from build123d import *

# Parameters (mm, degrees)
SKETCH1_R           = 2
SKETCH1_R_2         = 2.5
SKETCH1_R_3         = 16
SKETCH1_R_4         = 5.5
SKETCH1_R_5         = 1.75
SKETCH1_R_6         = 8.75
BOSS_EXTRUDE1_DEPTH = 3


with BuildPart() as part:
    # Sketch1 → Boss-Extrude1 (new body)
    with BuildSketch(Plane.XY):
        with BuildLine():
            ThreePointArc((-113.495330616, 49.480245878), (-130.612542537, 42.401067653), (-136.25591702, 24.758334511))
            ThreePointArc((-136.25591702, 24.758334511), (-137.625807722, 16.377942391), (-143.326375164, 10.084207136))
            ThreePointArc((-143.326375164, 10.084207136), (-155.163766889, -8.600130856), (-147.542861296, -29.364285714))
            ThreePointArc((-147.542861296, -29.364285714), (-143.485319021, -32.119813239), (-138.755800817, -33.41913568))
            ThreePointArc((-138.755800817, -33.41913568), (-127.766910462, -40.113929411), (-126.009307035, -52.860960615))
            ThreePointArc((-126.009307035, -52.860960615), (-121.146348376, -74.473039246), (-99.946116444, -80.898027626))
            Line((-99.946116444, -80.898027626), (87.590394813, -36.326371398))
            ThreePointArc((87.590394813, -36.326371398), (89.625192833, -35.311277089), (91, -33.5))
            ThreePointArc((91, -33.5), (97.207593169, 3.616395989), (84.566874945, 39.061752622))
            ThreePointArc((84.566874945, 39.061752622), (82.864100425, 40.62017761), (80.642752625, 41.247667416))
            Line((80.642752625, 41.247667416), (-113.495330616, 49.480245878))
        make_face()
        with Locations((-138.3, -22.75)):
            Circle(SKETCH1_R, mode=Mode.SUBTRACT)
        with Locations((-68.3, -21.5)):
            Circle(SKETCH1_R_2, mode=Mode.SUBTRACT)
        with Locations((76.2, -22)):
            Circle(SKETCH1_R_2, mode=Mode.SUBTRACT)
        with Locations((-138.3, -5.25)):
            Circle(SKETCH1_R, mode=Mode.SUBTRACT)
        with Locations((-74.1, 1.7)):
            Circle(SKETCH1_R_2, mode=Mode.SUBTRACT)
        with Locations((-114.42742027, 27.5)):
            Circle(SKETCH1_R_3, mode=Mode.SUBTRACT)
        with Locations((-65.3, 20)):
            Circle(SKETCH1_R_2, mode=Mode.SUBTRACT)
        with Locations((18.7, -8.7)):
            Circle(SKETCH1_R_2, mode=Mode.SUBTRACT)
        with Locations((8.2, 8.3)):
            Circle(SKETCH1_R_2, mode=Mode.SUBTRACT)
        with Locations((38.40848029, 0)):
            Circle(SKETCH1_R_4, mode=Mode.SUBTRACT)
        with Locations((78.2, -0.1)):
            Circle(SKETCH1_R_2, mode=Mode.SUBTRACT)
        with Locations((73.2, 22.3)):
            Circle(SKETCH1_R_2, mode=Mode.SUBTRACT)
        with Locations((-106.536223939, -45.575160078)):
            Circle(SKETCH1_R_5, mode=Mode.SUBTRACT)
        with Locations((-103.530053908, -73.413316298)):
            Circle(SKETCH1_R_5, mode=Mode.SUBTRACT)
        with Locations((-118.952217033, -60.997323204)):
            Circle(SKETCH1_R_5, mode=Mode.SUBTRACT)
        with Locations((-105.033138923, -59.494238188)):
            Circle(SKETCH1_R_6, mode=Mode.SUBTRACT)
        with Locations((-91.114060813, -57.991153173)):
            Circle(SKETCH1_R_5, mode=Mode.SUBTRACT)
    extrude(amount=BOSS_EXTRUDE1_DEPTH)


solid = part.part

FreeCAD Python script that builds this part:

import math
import FreeCAD as App
import Part
import Sketcher
Q = App.Units.Quantity

doc = App.newDocument("Part")
params = doc.addObject("Spreadsheet::Sheet", "Params")
for row, (alias, value) in enumerate([
    ("sketch1_diameter", "4 mm"),
    ("sketch1_diameter2", "5 mm"),
    ("sketch1_diameter3", "32 mm"),
    ("sketch1_diameter4", "11 mm"),
    ("sketch1_radius", "22 mm"),
    ("pad1_length", "3 mm"),
], start=1):
    params.set(f"A{row}", alias)
    params.set(f"B{row}", "=" + value)
    params.setAlias(f"B{row}", alias)

body = doc.addObject("PartDesign::Body", "Body")

# Sketch on XY plane
sketch1 = body.newObject("Sketcher::SketchObject", "Sketch")
sketch1.AttachmentSupport = (doc.getObject("XY_Plane"), [""])
sketch1.MapMode = "FlatFace"
sketch1.addGeometry(Part.ArcOfCircle(Part.Circle(App.Vector(-114.42742, 27.5, 0), App.Vector(0, 0, 1), 22), math.radians(87.571782), math.radians(187.158879)), False)
sketch1.addGeometry(Part.ArcOfCircle(Part.Circle(App.Vector(-151.138983, 22.889017, 0), App.Vector(0, 0, 1), 15), math.radians(-58.611351), math.radians(7.158879)), False)
sketch1.addGeometry(Part.ArcOfCircle(Part.Circle(App.Vector(-130.305362, -11.257143, 0), App.Vector(0, 0, 1), 25), math.radians(121.388649), math.radians(226.40946)), False)
sketch1.addGeometry(Part.ArcOfCircle(Part.Circle(App.Vector(-137.200362, -18.5, 0), App.Vector(0, 0, 1), 15), math.radians(-133.59054), math.radians(-95.952039)), False)
sketch1.addGeometry(Part.ArcOfCircle(Part.Circle(App.Vector(-140.31124, -48.338271, 0), App.Vector(0, 0, 1), 15), math.radians(-17.548477), math.radians(84.047961)), False)
sketch1.addGeometry(Part.ArcOfCircle(Part.Circle(App.Vector(-105.033139, -59.494238, 0), App.Vector(0, 0, 1), 22), math.radians(162.451523), math.radians(283.369397)), False)
sketch1.addGeometry(Part.LineSegment(App.Vector(-99.946116, -80.898028, 0), App.Vector(87.590395, -36.326371, 0)), False)
sketch1.addGeometry(Part.ArcOfCircle(Part.Circle(App.Vector(86.434253, -31.461874, 0), App.Vector(0, 0, 1), 5), math.radians(-76.630604), math.radians(-24.055744)), False)
sketch1.addGeometry(Part.ArcOfCircle(Part.Circle(App.Vector(22.658915, -2.992884, 0), App.Vector(0, 0, 1), 74.841085), math.radians(-24.055744), math.radians(34.188622)), False)
sketch1.addGeometry(Part.ArcOfCircle(Part.Circle(App.Vector(80.430914, 36.252157, 0), App.Vector(0, 0, 1), 5), math.radians(34.188622), math.radians(87.571782)), False)
sketch1.addGeometry(Part.LineSegment(App.Vector(80.642753, 41.247667, 0), App.Vector(-113.495331, 49.480246, 0)), False)
sketch1.addGeometry(Part.Circle(App.Vector(-118.952217, -60.997323, 0), App.Vector(0, 0, 1), 1.75), False)
sketch1.addGeometry(Part.Circle(App.Vector(-103.530054, -73.413316, 0), App.Vector(0, 0, 1), 1.75), False)
sketch1.addGeometry(Part.Circle(App.Vector(-105.033139, -59.494238, 0), App.Vector(0, 0, 1), 8.75), False)
sketch1.addGeometry(Part.Circle(App.Vector(-91.114061, -57.991153, 0), App.Vector(0, 0, 1), 1.75), False)
sketch1.addGeometry(Part.Circle(App.Vector(-106.536224, -45.57516, 0), App.Vector(0, 0, 1), 1.75), False)
sketch1.addGeometry(Part.Circle(App.Vector(-138.3, -22.75, 0), App.Vector(0, 0, 1), 2), False)
sketch1.addGeometry(Part.Circle(App.Vector(-68.3, -21.5, 0), App.Vector(0, 0, 1), 2.5), False)
sketch1.addGeometry(Part.Circle(App.Vector(76.2, -22, 0), App.Vector(0, 0, 1), 2.5), False)
sketch1.addGeometry(Part.Circle(App.Vector(-138.3, -5.25, 0), App.Vector(0, 0, 1), 2), False)
sketch1.addGeometry(Part.Circle(App.Vector(-74.1, 1.7, 0), App.Vector(0, 0, 1), 2.5), False)
sketch1.addGeometry(Part.Circle(App.Vector(-114.42742, 27.5, 0), App.Vector(0, 0, 1), 16), False)
sketch1.addGeometry(Part.Circle(App.Vector(-65.3, 20, 0), App.Vector(0, 0, 1), 2.5), False)
sketch1.addGeometry(Part.Circle(App.Vector(18.7, -8.7, 0), App.Vector(0, 0, 1), 2.5), False)
sketch1.addGeometry(Part.Circle(App.Vector(8.2, 8.3, 0), App.Vector(0, 0, 1), 2.5), False)
sketch1.addGeometry(Part.Circle(App.Vector(38.40848, 0, 0), App.Vector(0, 0, 1), 5.5), False)
sketch1.addGeometry(Part.Circle(App.Vector(78.2, -0.1, 0), App.Vector(0, 0, 1), 2.5), False)
sketch1.addGeometry(Part.Circle(App.Vector(73.2, 22.3, 0), App.Vector(0, 0, 1), 2.5), False)
sketch1.addConstraint(Sketcher.Constraint("Tangent", 0, 2, 1, 2))
sketch1.addConstraint(Sketcher.Constraint("Tangent", 1, 1, 2, 1))
sketch1.addConstraint(Sketcher.Constraint("Tangent", 2, 2, 3, 1))
sketch1.addConstraint(Sketcher.Constraint("Tangent", 3, 2, 4, 2))
sketch1.addConstraint(Sketcher.Constraint("Tangent", 4, 1, 5, 1))
sketch1.addConstraint(Sketcher.Constraint("Tangent", 5, 2, 6, 1))
sketch1.addConstraint(Sketcher.Constraint("Tangent", 6, 2, 7, 1))
sketch1.addConstraint(Sketcher.Constraint("Tangent", 7, 2, 8, 1))
sketch1.addConstraint(Sketcher.Constraint("Tangent", 8, 2, 9, 1))
sketch1.addConstraint(Sketcher.Constraint("Tangent", 9, 2, 10, 1))
sketch1.addConstraint(Sketcher.Constraint("Tangent", 10, 2, 0, 1))
sketch1.addConstraint(Sketcher.Constraint("Coincident", 13, 3, 5, 3))
sketch1.addConstraint(Sketcher.Constraint("Coincident", 21, 3, 0, 3))
sketch1.addConstraint(Sketcher.Constraint("Equal", 1, 3))
sketch1.addConstraint(Sketcher.Constraint("Equal", 3, 4))
sketch1.addConstraint(Sketcher.Constraint("Equal", 0, 5))
sketch1.addConstraint(Sketcher.Constraint("Equal", 7, 9))
sketch1.addConstraint(Sketcher.Constraint("Equal", 11, 12))
sketch1.addConstraint(Sketcher.Constraint("Equal", 12, 14))
sketch1.addConstraint(Sketcher.Constraint("Equal", 14, 15))
sketch1.addConstraint(Sketcher.Constraint("Equal", 17, 18))
sketch1.addConstraint(Sketcher.Constraint("Equal", 16, 19))
sketch1.addConstraint(Sketcher.Constraint("Equal", 18, 20))
sketch1.addConstraint(Sketcher.Constraint("Equal", 20, 22))
sketch1.addConstraint(Sketcher.Constraint("Equal", 22, 23))
sketch1.addConstraint(Sketcher.Constraint("Equal", 23, 24))
sketch1.addConstraint(Sketcher.Constraint("Equal", 24, 26))
sketch1.addConstraint(Sketcher.Constraint("Equal", 26, 27))
sketch1.addConstraint(Sketcher.Constraint("PointOnObject", 25, 3, -1))
sketch1.addConstraint(Sketcher.Constraint("Vertical", 16, 3, 19, 3))
sketch1.addConstraint(Sketcher.Constraint("Diameter", 16, Q("4 mm")))
sketch1.addConstraint(Sketcher.Constraint("Diameter", 17, Q("5 mm")))
sketch1.addConstraint(Sketcher.Constraint("Diameter", 21, Q("32 mm")))
sketch1.addConstraint(Sketcher.Constraint("Diameter", 25, Q("11 mm")))
sketch1.addConstraint(Sketcher.Constraint("Radius", 0, Q("22 mm")))
sketch1.addConstraint(Sketcher.Constraint("Radius", 1, Q("15 mm")))
sketch1.addConstraint(Sketcher.Constraint("Radius", 2, Q("25 mm")))
sketch1.addConstraint(Sketcher.Constraint("Radius", 7, Q("5 mm")))
sketch1.addConstraint(Sketcher.Constraint("Diameter", 11, Q("3.5 mm")))
sketch1.addConstraint(Sketcher.Constraint("Diameter", 13, Q("17.5 mm")))
sketch1.addConstraint(Sketcher.Constraint("DistanceY", 18, 3, -1, 1, Q("22 mm")))
sketch1.addConstraint(Sketcher.Constraint("DistanceY", -1, 1, 22, 3, Q("20 mm")))
sketch1.addConstraint(Sketcher.Constraint("DistanceX", -1, 1, 7, 2, Q("91 mm")))
sketch1.addConstraint(Sketcher.Constraint("DistanceY", 3, 3, 0, 3, Q("46 mm")))
sketch1.addConstraint(Sketcher.Constraint("DistanceX", 17, 3, 22, 3, Q("3 mm")))
sketch1.addConstraint(Sketcher.Constraint("DistanceX", 17, 3, 23, 3, Q("87 mm")))
sketch1.addConstraint(Sketcher.Constraint("DistanceY", 23, 3, 24, 3, Q("17 mm")))
sketch1.addConstraint(Sketcher.Constraint("DistanceX", 24, 3, 18, 3, Q("68 mm")))
sketch1.addConstraint(Sketcher.Constraint("DistanceX", 18, 3, 26, 3, Q("2 mm")))
sketch1.addConstraint(Sketcher.Constraint("DistanceX", 27, 3, 26, 3, Q("5 mm")))
sketch1.addConstraint(Sketcher.Constraint("DistanceY", -1, 1, 0, 3, Q("27.5 mm")))
sketch1.addConstraint(Sketcher.Constraint("DistanceX", 16, 3, -1, 1, Q("138.3 mm")))
sketch1.addConstraint(Sketcher.Constraint("DistanceX", 17, 3, -1, 1, Q("68.3 mm")))
sketch1.addConstraint(Sketcher.Constraint("DistanceY", 17, 3, -1, 1, Q("21.5 mm")))
sketch1.addConstraint(Sketcher.Constraint("DistanceX", -1, 1, 18, 3, Q("76.2 mm")))
sketch1.addConstraint(Sketcher.Constraint("DistanceX", 20, 3, -1, 1, Q("74.1 mm")))
sketch1.addConstraint(Sketcher.Constraint("DistanceY", -1, 1, 20, 3, Q("1.7 mm")))
sketch1.addConstraint(Sketcher.Constraint("DistanceY", 23, 3, -1, 1, Q("8.7 mm")))
sketch1.addConstraint(Sketcher.Constraint("DistanceY", 26, 3, -1, 1, Q("0.1 mm")))
sketch1.addConstraint(Sketcher.Constraint("DistanceY", -1, 1, 27, 3, Q("22.3 mm")))
sketch1.addConstraint(Sketcher.Constraint("DistanceY", 7, 2, -1, 1, Q("33.5 mm")))
sketch1.addConstraint(Sketcher.Constraint("DistanceY", 16, 3, 19, 3, Q("17.5 mm")))
sketch1.addConstraint(Sketcher.Constraint("DistanceY", 16, 3, -1, 1, Q("22.75 mm")))
sketch1.addConstraint(Sketcher.Constraint("Radius", 8, Q("74.841085 mm")))
sketch1.addConstraint(Sketcher.Constraint("DistanceX", 3, 3, 2, 3, Q("6.895 mm")))
sketch1.addConstraint(Sketcher.Constraint("DistanceX", 8, 3, 9, 3, Q("57.771999 mm")))
sketch1.addConstraint(Sketcher.Constraint("DistanceX", 3, 2, -1, 1, Q("138.755801 mm")))
sketch1.addConstraint(Sketcher.Constraint("DistanceX", 4, 3, 5, 3, Q("35.278101 mm")))
sketch1.addConstraint(Sketcher.Constraint("DistanceY", 2, 3, 9, 3, Q("47.5093 mm")))
sketch1.addConstraint(Sketcher.Constraint("DistanceY", 4, 1, 15, 3, Q("7.285801 mm")))
sketch1.addConstraint(Sketcher.Constraint("DistanceX", 11, 3, 5, 2, Q("19.006101 mm")))
sketch1.addConstraint(Sketcher.Constraint("Distance", 6, Q("192.76041 mm")))
sketch1.addConstraint(Sketcher.Constraint("Distance", 10, Q("194.312559 mm")))
sketch1.addConstraint(Sketcher.Constraint("DistanceX", 14, 3, -1, 1, Q("91.114061 mm")))
sketch1.addConstraint(Sketcher.Constraint("DistanceX", -1, 1, 25, 3, Q("38.40848 mm")))
sketch1.addConstraint(Sketcher.Constraint("DistanceY", 11, 3, 4, 3, Q("12.659052 mm")))
sketch1.addConstraint(Sketcher.Constraint("DistanceY", 12, 3, 5, 3, Q("13.919078 mm")))
sketch1.addConstraint(Sketcher.Constraint("DistanceX", 2, 3, 12, 3, Q("26.775308 mm")))
sketch1.addConstraint(Sketcher.Constraint("DistanceY", 11, 3, 14, 3, Q("3.00617 mm")))
sketch1.addConstraint(Sketcher.Constraint("DistanceX", 15, 3, 12, 3, Q("3.00617 mm")))
sketch1.setExpression("Constraints[30]", "Params.sketch1_diameter")
sketch1.setExpression("Constraints[31]", "Params.sketch1_diameter2")
sketch1.setExpression("Constraints[32]", "Params.sketch1_diameter3")
sketch1.setExpression("Constraints[33]", "Params.sketch1_diameter4")
sketch1.setExpression("Constraints[34]", "Params.sketch1_radius")
pad1 = body.newObject("PartDesign::Pad", "Pad")
pad1.Profile = sketch1
pad1.setExpression("Length", "Params.pad1_length")

doc.recompute()
